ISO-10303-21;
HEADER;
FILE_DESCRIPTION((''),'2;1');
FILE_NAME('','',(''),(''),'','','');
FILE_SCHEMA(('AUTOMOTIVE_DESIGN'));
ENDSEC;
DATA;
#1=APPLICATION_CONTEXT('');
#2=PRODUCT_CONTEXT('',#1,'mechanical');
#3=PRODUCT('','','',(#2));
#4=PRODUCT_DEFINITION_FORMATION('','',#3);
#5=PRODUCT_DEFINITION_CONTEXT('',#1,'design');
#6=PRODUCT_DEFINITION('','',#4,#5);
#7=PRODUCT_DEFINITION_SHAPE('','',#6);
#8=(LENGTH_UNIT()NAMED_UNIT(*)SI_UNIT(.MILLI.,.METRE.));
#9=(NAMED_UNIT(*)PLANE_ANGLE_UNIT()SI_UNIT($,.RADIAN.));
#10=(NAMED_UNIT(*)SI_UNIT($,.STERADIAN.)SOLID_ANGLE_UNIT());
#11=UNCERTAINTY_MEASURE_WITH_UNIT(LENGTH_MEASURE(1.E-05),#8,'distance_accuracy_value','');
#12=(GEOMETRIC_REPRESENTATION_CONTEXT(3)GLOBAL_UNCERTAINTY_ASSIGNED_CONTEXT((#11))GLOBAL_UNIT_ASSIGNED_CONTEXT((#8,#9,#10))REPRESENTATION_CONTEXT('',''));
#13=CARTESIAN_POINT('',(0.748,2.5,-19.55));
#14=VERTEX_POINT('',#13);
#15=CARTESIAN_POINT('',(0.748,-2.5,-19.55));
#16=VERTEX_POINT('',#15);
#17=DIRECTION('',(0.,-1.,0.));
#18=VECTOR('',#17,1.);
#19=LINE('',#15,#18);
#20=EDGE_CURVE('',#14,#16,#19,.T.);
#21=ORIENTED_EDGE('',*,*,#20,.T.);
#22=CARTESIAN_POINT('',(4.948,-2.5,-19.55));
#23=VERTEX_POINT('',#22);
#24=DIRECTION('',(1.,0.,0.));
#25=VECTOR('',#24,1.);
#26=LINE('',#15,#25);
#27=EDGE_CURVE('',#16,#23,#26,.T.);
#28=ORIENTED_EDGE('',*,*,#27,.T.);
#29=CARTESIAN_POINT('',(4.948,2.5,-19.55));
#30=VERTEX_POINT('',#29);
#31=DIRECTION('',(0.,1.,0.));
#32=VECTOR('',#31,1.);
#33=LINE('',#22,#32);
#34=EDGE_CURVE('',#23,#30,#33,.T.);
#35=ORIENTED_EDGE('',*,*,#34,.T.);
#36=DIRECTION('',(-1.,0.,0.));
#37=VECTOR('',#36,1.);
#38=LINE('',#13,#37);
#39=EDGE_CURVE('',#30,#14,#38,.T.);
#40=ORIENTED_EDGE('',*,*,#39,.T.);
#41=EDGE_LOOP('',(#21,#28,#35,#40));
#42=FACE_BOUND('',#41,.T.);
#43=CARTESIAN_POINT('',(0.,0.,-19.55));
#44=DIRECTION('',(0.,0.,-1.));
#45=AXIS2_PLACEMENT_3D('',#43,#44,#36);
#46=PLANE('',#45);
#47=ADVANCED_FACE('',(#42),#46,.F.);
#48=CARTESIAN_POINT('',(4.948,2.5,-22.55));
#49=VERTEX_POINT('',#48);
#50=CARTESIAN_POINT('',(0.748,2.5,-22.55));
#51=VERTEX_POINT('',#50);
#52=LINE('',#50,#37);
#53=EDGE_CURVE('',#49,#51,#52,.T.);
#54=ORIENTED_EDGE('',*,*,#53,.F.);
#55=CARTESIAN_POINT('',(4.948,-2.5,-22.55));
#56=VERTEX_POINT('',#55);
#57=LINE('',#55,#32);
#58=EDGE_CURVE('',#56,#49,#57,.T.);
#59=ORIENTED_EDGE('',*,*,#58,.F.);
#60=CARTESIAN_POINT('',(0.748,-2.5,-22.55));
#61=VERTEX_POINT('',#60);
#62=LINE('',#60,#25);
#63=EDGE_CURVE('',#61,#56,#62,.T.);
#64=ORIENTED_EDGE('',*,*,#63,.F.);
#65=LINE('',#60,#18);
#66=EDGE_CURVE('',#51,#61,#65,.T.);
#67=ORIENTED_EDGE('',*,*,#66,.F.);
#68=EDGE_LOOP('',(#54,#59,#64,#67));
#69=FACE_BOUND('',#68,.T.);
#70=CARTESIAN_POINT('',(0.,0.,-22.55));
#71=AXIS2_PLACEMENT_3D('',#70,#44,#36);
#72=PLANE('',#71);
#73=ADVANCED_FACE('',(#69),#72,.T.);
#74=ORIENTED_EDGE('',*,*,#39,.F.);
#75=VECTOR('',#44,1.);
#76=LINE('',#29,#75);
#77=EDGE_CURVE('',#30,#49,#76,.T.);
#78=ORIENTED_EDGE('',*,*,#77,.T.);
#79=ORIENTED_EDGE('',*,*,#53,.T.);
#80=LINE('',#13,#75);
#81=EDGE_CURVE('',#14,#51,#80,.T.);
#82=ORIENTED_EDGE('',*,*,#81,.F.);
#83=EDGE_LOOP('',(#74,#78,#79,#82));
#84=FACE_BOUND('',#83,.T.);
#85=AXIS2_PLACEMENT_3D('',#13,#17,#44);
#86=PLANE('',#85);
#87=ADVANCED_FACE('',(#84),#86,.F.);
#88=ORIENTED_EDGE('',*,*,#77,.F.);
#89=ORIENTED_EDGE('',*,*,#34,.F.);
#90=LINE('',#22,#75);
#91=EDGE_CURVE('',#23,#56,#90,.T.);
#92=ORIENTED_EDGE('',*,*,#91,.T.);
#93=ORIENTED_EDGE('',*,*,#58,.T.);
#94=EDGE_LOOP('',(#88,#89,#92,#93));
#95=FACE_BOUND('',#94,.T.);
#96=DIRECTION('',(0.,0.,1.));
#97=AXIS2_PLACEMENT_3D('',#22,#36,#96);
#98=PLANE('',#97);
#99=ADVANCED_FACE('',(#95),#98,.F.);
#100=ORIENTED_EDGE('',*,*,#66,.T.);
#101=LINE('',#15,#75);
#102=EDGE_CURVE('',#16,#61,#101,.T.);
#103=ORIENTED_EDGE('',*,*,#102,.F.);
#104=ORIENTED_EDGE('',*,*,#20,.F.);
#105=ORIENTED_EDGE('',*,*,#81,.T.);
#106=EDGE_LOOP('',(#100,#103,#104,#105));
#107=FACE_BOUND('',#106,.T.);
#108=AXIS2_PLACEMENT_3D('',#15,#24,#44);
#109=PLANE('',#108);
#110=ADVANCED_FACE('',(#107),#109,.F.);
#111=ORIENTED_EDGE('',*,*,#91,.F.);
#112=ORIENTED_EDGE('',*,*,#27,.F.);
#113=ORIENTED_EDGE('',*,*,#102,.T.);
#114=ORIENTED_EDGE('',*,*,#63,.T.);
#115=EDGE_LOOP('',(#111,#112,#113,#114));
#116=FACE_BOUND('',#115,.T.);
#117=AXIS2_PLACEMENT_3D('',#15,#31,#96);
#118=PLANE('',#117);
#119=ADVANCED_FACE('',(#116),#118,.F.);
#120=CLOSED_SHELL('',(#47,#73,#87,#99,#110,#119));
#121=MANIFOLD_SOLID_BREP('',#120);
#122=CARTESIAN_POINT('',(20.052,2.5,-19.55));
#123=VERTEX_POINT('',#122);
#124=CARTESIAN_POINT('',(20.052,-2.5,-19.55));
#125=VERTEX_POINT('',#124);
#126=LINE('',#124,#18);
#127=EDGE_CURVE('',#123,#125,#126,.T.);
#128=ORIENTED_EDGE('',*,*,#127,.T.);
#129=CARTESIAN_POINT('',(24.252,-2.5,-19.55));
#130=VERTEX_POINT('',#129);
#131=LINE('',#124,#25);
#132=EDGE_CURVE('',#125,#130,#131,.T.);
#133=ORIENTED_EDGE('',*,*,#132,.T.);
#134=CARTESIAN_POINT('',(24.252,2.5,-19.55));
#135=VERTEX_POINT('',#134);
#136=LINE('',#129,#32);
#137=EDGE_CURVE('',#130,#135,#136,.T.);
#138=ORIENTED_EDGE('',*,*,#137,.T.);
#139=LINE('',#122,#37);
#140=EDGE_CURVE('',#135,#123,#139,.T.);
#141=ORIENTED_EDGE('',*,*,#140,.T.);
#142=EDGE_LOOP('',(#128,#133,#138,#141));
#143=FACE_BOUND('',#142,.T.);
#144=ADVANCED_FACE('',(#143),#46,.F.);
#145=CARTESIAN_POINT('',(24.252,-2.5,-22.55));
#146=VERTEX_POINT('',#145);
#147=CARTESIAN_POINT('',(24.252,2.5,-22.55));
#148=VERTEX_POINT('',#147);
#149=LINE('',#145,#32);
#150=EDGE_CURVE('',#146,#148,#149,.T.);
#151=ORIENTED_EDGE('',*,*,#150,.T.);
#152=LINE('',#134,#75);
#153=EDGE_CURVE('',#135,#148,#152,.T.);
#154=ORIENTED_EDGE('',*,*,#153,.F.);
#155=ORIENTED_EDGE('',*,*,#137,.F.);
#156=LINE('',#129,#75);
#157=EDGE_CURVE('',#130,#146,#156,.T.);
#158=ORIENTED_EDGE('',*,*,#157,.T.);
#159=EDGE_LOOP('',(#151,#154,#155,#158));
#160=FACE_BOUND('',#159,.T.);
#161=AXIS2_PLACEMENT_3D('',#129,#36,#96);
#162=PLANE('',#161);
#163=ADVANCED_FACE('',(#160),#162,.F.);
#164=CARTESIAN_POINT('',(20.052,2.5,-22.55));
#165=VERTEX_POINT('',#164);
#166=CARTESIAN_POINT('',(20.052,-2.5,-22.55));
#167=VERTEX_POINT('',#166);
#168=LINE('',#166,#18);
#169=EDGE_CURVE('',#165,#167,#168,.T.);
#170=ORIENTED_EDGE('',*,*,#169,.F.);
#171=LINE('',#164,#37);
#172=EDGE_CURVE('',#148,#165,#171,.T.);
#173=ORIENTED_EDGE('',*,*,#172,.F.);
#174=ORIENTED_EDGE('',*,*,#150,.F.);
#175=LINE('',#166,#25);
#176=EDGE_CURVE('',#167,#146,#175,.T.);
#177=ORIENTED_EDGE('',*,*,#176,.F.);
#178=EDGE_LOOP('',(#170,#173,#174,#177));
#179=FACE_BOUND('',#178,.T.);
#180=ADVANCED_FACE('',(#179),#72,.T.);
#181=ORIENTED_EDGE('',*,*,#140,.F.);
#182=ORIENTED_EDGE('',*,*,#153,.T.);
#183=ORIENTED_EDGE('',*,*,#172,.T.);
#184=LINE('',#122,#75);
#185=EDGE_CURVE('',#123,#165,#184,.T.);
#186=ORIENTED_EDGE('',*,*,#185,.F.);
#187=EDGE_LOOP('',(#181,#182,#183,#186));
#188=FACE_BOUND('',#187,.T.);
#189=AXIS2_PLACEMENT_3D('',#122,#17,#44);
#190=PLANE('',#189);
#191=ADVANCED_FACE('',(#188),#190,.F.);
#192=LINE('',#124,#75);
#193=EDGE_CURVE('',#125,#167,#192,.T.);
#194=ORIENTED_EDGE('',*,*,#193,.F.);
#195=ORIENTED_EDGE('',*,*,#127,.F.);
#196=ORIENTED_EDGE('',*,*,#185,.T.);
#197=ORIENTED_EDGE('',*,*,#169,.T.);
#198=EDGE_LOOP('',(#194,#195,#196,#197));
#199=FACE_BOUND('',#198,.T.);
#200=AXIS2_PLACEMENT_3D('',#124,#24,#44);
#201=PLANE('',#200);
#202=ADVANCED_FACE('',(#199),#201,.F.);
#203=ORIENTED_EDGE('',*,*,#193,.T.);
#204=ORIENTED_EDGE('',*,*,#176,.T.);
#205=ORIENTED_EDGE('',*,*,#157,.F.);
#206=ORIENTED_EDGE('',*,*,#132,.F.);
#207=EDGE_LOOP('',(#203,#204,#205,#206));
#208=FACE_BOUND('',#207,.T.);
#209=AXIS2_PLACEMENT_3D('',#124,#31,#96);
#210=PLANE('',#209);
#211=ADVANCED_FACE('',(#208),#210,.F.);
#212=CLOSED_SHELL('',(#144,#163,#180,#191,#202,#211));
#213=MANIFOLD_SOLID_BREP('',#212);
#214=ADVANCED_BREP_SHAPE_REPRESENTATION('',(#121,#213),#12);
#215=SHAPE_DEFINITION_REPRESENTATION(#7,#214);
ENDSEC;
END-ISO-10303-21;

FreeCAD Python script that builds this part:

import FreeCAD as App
import Part
import Sketcher
from FreeCAD import Vector

doc = App.newDocument("Part")
body = doc.addObject("PartDesign::Body", "Body")

# Sketch on XY plane
sketch1 = body.newObject("Sketcher::SketchObject", "Sketch")
sketch1.AttachmentSupport = (doc.getObject("XY_Plane"), [""])
sketch1.MapMode = "FlatFace"
sketch1.AttachmentOffset = App.Placement(Vector(0, 0, -22.55), App.Rotation())
sketch1.addGeometry(Part.LineSegment(Vector(0.7, 2.5, 0), Vector(0.7, -2.5, 0)), False)
sketch1.addGeometry(Part.LineSegment(Vector(0.7, -2.5, 0), Vector(4.9, -2.5, 0)), False)
sketch1.addGeometry(Part.LineSegment(Vector(4.9, -2.5, 0), Vector(4.9, 2.5, 0)), False)
sketch1.addGeometry(Part.LineSegment(Vector(4.9, 2.5, 0), Vector(0.7, 2.5, 0)), False)
sketch1.addConstraint(Sketcher.Constraint("Coincident", 0, 2, 1, 1))
sketch1.addConstraint(Sketcher.Constraint("Coincident", 1, 2, 2, 1))
sketch1.addConstraint(Sketcher.Constraint("Coincident", 2, 2, 3, 1))
sketch1.addConstraint(Sketcher.Constraint("Coincident", 3, 2, 0, 1))
sketch1.addConstraint(Sketcher.Constraint("Vertical", 0))
sketch1.addConstraint(Sketcher.Constraint("Horizontal", 1))
sketch1.addConstraint(Sketcher.Constraint("Vertical", 2))
sketch1.addConstraint(Sketcher.Constraint("Horizontal", 3))
sketch1.addConstraint(Sketcher.Constraint("DistanceY", 0, 2, 0, 1, 5.0))
sketch1.addConstraint(Sketcher.Constraint("DistanceX", 1, 1, 1, 2, 4.2))
sketch1.addConstraint(Sketcher.Constraint("DistanceY", 0, 2, -1, 1, 2.5))
sketch1.addConstraint(Sketcher.Constraint("DistanceX", -1, 1, 0, 2, 0.748))
pad1 = body.newObject("PartDesign::Pad", "Pad")
pad1.Profile = sketch1
pad1.Length = 3
body2 = doc.addObject("PartDesign::Body", "Body001")

# Sketch on XY plane
sketch2 = body2.newObject("Sketcher::SketchObject", "Sketch001")
sketch2.AttachmentSupport = (doc.getObject("XY_Plane001"), [""])
sketch2.MapMode = "FlatFace"
sketch2.AttachmentOffset = App.Placement(Vector(0, 0, -22.55), App.Rotation())
sketch2.addGeometry(Part.LineSegment(Vector(20.1, 2.5, 0), Vector(20.1, -2.5, 0)), False)
sketch2.addGeometry(Part.LineSegment(Vector(20.1, -2.5, 0), Vector(24.3, -2.5, 0)), False)
sketch2.addGeometry(Part.LineSegment(Vector(24.3, -2.5, 0), Vector(24.3, 2.5, 0)), False)
sketch2.addGeometry(Part.LineSegment(Vector(24.3, 2.5, 0), Vector(20.1, 2.5, 0)), False)
sketch2.addConstraint(Sketcher.Constraint("Coincident", 0, 2, 1, 1))
sketch2.addConstraint(Sketcher.Constraint("Coincident", 1, 2, 2, 1))
sketch2.addConstraint(Sketcher.Constraint("Coincident", 2, 2, 3, 1))
sketch2.addConstraint(Sketcher.Constraint("Coincident", 3, 2, 0, 1))
sketch2.addConstraint(Sketcher.Constraint("Vertical", 0))
sketch2.addConstraint(Sketcher.Constraint("Horizontal", 1))
sketch2.addConstraint(Sketcher.Constraint("Vertical", 2))
sketch2.addConstraint(Sketcher.Constraint("Horizontal", 3))
sketch2.addConstraint(Sketcher.Constraint("DistanceY", 0, 2, 0, 1, 5.0))
sketch2.addConstraint(Sketcher.Constraint("DistanceX", 1, 1, 1, 2, 4.2))
sketch2.addConstraint(Sketcher.Constraint("DistanceY", 0, 2, -1, 1, 2.5))
sketch2.addConstraint(Sketcher.Constraint("DistanceX", -1, 1, 0, 2, 20.052))
pad2 = body2.newObject("PartDesign::Pad", "Pad001")
pad2.Profile = sketch2
pad2.Length = 3

doc.recompute()
